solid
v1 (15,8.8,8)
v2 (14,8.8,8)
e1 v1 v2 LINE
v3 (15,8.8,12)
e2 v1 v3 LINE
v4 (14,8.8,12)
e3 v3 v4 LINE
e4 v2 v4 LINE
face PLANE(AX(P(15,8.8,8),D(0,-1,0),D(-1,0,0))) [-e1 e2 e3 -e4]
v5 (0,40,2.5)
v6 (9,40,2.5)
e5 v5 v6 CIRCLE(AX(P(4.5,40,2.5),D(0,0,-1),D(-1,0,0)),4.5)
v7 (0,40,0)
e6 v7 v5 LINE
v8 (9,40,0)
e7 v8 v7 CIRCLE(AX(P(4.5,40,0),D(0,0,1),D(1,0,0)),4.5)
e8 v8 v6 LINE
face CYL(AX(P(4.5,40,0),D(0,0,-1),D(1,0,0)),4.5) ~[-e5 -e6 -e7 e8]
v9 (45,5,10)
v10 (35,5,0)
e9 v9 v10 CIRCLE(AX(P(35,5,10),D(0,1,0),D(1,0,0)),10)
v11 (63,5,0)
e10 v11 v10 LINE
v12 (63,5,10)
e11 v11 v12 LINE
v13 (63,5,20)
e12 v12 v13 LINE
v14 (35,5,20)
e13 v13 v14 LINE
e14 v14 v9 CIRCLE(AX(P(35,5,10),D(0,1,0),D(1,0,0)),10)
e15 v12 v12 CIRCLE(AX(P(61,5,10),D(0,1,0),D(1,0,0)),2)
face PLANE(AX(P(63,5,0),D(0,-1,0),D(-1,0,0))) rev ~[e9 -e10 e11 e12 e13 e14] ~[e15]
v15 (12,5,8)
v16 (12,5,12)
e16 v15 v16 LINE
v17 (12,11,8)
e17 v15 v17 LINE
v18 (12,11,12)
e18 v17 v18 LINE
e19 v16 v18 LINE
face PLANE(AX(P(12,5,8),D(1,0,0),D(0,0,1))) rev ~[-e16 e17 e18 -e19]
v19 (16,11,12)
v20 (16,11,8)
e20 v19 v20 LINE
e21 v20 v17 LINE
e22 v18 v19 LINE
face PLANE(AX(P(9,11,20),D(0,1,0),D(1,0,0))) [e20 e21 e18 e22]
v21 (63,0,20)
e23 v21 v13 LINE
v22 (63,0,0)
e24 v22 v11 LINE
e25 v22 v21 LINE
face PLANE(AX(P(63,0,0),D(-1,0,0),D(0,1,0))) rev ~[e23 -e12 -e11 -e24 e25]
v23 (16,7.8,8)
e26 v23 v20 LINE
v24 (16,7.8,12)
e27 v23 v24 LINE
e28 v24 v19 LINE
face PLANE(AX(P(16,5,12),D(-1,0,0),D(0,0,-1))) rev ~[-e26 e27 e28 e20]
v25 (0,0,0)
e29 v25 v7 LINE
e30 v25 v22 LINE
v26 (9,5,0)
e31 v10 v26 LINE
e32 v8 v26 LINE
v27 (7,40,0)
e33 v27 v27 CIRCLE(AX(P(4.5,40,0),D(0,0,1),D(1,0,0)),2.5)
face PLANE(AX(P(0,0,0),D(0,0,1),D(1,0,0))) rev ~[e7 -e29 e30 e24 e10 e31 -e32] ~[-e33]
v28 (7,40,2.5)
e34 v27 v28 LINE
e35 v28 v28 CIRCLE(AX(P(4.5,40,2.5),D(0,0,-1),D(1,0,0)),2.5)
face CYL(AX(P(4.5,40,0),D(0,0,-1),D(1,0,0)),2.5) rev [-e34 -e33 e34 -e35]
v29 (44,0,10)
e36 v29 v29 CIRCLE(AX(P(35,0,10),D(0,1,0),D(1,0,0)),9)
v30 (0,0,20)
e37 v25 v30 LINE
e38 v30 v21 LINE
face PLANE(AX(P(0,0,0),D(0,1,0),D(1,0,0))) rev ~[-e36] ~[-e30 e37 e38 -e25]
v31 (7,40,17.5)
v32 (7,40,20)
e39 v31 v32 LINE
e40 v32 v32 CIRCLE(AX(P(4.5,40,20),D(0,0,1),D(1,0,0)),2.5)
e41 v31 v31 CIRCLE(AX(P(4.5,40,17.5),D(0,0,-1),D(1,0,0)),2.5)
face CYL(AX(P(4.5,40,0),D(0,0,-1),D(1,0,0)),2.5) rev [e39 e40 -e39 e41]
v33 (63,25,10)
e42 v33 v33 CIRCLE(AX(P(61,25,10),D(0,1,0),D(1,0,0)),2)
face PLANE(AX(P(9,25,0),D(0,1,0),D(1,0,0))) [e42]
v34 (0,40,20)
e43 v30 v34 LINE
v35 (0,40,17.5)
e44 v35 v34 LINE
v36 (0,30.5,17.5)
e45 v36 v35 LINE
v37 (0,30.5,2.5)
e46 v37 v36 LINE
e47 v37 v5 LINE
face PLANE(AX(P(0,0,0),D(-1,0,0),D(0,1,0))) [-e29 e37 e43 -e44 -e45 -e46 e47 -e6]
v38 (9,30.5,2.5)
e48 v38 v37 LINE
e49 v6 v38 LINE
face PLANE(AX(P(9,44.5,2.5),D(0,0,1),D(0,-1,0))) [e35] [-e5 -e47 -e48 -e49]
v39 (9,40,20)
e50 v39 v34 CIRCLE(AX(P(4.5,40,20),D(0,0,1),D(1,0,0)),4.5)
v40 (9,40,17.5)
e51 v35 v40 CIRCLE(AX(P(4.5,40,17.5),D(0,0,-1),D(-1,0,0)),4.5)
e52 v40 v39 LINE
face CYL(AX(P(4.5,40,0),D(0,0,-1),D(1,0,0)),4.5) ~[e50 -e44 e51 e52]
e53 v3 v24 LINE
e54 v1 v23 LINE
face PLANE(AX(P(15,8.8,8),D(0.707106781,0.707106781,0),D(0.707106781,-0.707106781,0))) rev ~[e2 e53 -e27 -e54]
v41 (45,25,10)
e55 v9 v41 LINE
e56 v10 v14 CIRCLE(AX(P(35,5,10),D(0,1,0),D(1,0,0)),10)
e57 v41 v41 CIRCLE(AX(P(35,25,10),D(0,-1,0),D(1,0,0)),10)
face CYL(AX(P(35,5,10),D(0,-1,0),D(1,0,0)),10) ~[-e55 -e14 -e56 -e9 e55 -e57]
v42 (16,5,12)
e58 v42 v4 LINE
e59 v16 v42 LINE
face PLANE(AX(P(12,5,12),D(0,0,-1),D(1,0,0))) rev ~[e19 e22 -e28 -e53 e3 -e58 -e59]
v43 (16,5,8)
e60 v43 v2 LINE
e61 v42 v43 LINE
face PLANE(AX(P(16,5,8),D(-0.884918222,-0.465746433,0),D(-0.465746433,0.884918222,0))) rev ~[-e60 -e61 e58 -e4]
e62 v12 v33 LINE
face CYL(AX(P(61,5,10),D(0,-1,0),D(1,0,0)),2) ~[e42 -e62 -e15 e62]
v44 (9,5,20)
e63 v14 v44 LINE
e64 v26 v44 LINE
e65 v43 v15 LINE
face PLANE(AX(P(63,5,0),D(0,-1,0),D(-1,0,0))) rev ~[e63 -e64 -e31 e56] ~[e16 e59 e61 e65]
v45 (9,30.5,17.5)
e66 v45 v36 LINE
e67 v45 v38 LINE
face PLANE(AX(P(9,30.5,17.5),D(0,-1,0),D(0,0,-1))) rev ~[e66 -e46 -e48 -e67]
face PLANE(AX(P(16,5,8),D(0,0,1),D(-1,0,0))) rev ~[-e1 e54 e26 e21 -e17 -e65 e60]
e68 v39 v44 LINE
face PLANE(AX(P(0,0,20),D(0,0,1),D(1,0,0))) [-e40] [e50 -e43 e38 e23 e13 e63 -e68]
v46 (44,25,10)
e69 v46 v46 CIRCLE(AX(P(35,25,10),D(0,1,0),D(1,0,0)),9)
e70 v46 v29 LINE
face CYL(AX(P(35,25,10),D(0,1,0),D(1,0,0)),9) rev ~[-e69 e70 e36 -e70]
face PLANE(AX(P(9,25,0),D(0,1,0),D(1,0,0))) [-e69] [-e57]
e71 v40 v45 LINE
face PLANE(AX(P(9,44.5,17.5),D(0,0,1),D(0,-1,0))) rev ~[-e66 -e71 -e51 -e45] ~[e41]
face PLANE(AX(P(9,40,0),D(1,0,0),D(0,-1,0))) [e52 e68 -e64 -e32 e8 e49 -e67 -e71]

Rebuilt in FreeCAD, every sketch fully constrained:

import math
import FreeCAD as App
import Part
import Sketcher
from FreeCAD import Vector


def add_polygon(sketch, points):
    """Adds a closed chain of lines whose ends are joined by coincident constraints."""
    first, n = sketch.GeometryCount, len(points)
    for a, b in zip(points, points[1:] + points[:1]):
        sketch.addGeometry(Part.LineSegment(App.Vector(*a, 0), App.Vector(*b, 0)), False)
    for i in range(n):
        sketch.addConstraint(Sketcher.Constraint("Coincident", first + i, 2, first + (i + 1) % n, 1))

doc = App.newDocument("Part")
body = doc.addObject("PartDesign::Body", "Body")

# Sketch on XY plane
sketch1 = body.newObject("Sketcher::SketchObject", "Sketch")
sketch1.AttachmentSupport = (doc.getObject("XY_Plane"), [""])
sketch1.MapMode = "FlatFace"
sketch1.addGeometry([
    Part.LineSegment(Vector(0, 40, 0), Vector(0, 0, 0)),  # 0
    Part.LineSegment(Vector(0, 0, 0), Vector(63, 0, 0)),  # 1
    Part.LineSegment(Vector(63, 0, 0), Vector(63, 5, 0)),  # 2
    Part.LineSegment(Vector(63, 5, 0), Vector(9, 5, 0)),  # 3
    Part.LineSegment(Vector(9, 5, 0), Vector(9, 40, 0)),  # 4
    Part.ArcOfCircle(Part.Circle(Vector(4.5, 40, 0), Vector(0, 0, 1), 4.5), math.radians(0), math.radians(180)),  # 5
    Part.Circle(Vector(4.5, 40, 0), Vector(0, 0, 1), 2.5),  # 6
], False)
sketch1.addConstraint([
    Sketcher.Constraint("Coincident", 0, 2, 1, 1),
    Sketcher.Constraint("Coincident", 1, 2, 2, 1),
    Sketcher.Constraint("Coincident", 2, 2, 3, 1),
    Sketcher.Constraint("Coincident", 3, 2, 4, 1),
    Sketcher.Constraint("Tangent", 4, 2, 5, 1),
    Sketcher.Constraint("Tangent", 5, 2, 0, 1),
    Sketcher.Constraint("Vertical", 0),
    Sketcher.Constraint("Horizontal", 1),
    Sketcher.Constraint("Vertical", 2),
    Sketcher.Constraint("Horizontal", 3),
    Sketcher.Constraint("Vertical", 4),
    Sketcher.Constraint("Coincident", 0, 2, -1, 1),
    Sketcher.Constraint("Coincident", 6, 3, 5, 3),
    Sketcher.Constraint("Diameter", 6, 5.0),
    Sketcher.Constraint("Radius", 5, 4.5),
    Sketcher.Constraint("DistanceX", 3, 2, 3, 1, 54.0),
    Sketcher.Constraint("DistanceY", 0, 2, 0, 1, 40.0),
    Sketcher.Constraint("DistanceY", 2, 1, 2, 2, 5.0),
])
pad1 = body.newObject("PartDesign::Pad", "Pad")
pad1.Profile = sketch1
pad1.Length = 20

# Sketch on YZ plane
sketch2 = body.newObject("Sketcher::SketchObject", "Sketch001")
sketch2.AttachmentSupport = (doc.getObject("YZ_Plane"), [""])
sketch2.MapMode = "FlatFace"
sketch2.AttachmentOffset = App.Placement(Vector(0, 0, 9), App.Rotation())
add_polygon(sketch2, [(44, 2), (44, 18), (30, 18), (30, 2)])  # lines 0-3
sketch2.addConstraint([
    Sketcher.Constraint("Vertical", 0),
    Sketcher.Constraint("Horizontal", 1),
    Sketcher.Constraint("Vertical", 2),
    Sketcher.Constraint("Horizontal", 3),
    Sketcher.Constraint("DistanceX", 1, 2, 1, 1, 14.0),
    Sketcher.Constraint("DistanceY", 0, 1, 0, 2, 15.0),
    Sketcher.Constraint("DistanceX", -1, 1, 0, 2, 44.5),
    Sketcher.Constraint("DistanceY", -1, 1, 0, 2, 17.5),
])
pocket1 = body.newObject("PartDesign::Pocket", "Pocket")
pocket1.Profile = sketch2
pocket1.Length = 14

# Sketch on XZ plane
sketch3 = body.newObject("Sketcher::SketchObject", "Sketch002")
sketch3.AttachmentSupport = (doc.getObject("XZ_Plane"), [""])
sketch3.MapMode = "FlatFace"
sketch3.AttachmentOffset = App.Placement(Vector(0, 0, -5), App.Rotation())
sketch3.addGeometry([
    Part.Circle(Vector(35, 10, 0), Vector(0, 0, 1), 10),
    Part.Circle(Vector(61, 10, 0), Vector(0, 0, 1), 2),
], False)
sketch3.addConstraint([
    Sketcher.Constraint("Horizontal", 0, 3, 1, 3),
    Sketcher.Constraint("Diameter", 0, 20.0),
    Sketcher.Constraint("Diameter", 1, 4.0),
    Sketcher.Constraint("DistanceY", -1, 1, 0, 3, 10.0),
    Sketcher.Constraint("DistanceX", 0, 3, 1, 3, 26.0),
    Sketcher.Constraint("DistanceX", -1, 1, 0, 3, 35.0),
])
pad2 = body.newObject("PartDesign::Pad", "Pad001")
pad2.Profile = sketch3
pad2.Length = 20
pad2.Reversed = True

# Sketch on XZ plane
sketch4 = body.newObject("Sketcher::SketchObject", "Sketch003")
sketch4.AttachmentSupport = (doc.getObject("XZ_Plane"), [""])
sketch4.MapMode = "FlatFace"
sketch4.AttachmentOffset = App.Placement(Vector(0, 0, -25), App.Rotation())
sketch4.addGeometry(Part.Circle(Vector(35, 10, 0), Vector(0, 0, 1), 9), False)
sketch4.addConstraint([
    Sketcher.Constraint("Diameter", 0, 18.0),
    Sketcher.Constraint("DistanceX", -1, 1, 0, 3, 35.0),
    Sketcher.Constraint("DistanceY", -1, 1, 0, 3, 10.0),
])
pocket2 = body.newObject("PartDesign::Pocket", "Pocket001")
pocket2.Profile = sketch4
pocket2.Length = 25
pocket2.Reversed = True

# Sketch on XZ plane
sketch5 = body.newObject("Sketcher::SketchObject", "Sketch004")
sketch5.AttachmentSupport = (doc.getObject("XZ_Plane"), [""])
sketch5.MapMode = "FlatFace"
sketch5.AttachmentOffset = App.Placement(Vector(0, 0, -5), App.Rotation())
add_polygon(sketch5, [(12, 8), (12, 12), (16, 12), (16, 8)])  # lines 0-3
sketch5.addConstraint([
    Sketcher.Constraint("Vertical", 0),
    Sketcher.Constraint("Horizontal", 1),
    Sketcher.Constraint("Vertical", 2),
    Sketcher.Constraint("Horizontal", 3),
    Sketcher.Constraint("Equal", 3, 0),
    Sketcher.Constraint("DistanceX", 1, 1, 1, 2, 4.0),
    Sketcher.Constraint("DistanceY", -1, 1, 2, 2, 8.0),
    Sketcher.Constraint("DistanceX", -1, 1, 0, 2, 12.0),
])
pad3 = body.newObject("PartDesign::Pad", "Pad002")
pad3.Profile = sketch5
pad3.Length = 6
pad3.Reversed = True

# Sketch on XY plane
sketch6 = body.newObject("Sketcher::SketchObject", "Sketch005")
sketch6.AttachmentSupport = (doc.getObject("XY_Plane"), [""])
sketch6.MapMode = "FlatFace"
sketch6.AttachmentOffset = App.Placement(Vector(0, 0, 8), App.Rotation())
add_polygon(sketch6, [(14, 8.8), (15, 8.8), (16, 7.8), (16, 5)])  # lines 0-3
sketch6.addConstraint([
    Sketcher.Constraint("Horizontal", 0),
    Sketcher.Constraint("Vertical", 2),
    Sketcher.Constraint("DistanceX", 0, 1, 0, 2, 1.0),
    Sketcher.Constraint("DistanceY", 2, 2, 2, 1, 2.8),
    Sketcher.Constraint("DistanceX", 0, 2, 1, 2, 1.0),
    Sketcher.Constraint("DistanceY", 1, 2, 0, 2, 1.0),
    Sketcher.Constraint("DistanceX", -1, 1, 0, 2, 15.0),
    Sketcher.Constraint("DistanceY", -1, 1, 2, 2, 5.0),
])
pocket3 = body.newObject("PartDesign::Pocket", "Pocket002")
pocket3.Profile = sketch6
pocket3.Length = 4
pocket3.Reversed = True

doc.recompute()
